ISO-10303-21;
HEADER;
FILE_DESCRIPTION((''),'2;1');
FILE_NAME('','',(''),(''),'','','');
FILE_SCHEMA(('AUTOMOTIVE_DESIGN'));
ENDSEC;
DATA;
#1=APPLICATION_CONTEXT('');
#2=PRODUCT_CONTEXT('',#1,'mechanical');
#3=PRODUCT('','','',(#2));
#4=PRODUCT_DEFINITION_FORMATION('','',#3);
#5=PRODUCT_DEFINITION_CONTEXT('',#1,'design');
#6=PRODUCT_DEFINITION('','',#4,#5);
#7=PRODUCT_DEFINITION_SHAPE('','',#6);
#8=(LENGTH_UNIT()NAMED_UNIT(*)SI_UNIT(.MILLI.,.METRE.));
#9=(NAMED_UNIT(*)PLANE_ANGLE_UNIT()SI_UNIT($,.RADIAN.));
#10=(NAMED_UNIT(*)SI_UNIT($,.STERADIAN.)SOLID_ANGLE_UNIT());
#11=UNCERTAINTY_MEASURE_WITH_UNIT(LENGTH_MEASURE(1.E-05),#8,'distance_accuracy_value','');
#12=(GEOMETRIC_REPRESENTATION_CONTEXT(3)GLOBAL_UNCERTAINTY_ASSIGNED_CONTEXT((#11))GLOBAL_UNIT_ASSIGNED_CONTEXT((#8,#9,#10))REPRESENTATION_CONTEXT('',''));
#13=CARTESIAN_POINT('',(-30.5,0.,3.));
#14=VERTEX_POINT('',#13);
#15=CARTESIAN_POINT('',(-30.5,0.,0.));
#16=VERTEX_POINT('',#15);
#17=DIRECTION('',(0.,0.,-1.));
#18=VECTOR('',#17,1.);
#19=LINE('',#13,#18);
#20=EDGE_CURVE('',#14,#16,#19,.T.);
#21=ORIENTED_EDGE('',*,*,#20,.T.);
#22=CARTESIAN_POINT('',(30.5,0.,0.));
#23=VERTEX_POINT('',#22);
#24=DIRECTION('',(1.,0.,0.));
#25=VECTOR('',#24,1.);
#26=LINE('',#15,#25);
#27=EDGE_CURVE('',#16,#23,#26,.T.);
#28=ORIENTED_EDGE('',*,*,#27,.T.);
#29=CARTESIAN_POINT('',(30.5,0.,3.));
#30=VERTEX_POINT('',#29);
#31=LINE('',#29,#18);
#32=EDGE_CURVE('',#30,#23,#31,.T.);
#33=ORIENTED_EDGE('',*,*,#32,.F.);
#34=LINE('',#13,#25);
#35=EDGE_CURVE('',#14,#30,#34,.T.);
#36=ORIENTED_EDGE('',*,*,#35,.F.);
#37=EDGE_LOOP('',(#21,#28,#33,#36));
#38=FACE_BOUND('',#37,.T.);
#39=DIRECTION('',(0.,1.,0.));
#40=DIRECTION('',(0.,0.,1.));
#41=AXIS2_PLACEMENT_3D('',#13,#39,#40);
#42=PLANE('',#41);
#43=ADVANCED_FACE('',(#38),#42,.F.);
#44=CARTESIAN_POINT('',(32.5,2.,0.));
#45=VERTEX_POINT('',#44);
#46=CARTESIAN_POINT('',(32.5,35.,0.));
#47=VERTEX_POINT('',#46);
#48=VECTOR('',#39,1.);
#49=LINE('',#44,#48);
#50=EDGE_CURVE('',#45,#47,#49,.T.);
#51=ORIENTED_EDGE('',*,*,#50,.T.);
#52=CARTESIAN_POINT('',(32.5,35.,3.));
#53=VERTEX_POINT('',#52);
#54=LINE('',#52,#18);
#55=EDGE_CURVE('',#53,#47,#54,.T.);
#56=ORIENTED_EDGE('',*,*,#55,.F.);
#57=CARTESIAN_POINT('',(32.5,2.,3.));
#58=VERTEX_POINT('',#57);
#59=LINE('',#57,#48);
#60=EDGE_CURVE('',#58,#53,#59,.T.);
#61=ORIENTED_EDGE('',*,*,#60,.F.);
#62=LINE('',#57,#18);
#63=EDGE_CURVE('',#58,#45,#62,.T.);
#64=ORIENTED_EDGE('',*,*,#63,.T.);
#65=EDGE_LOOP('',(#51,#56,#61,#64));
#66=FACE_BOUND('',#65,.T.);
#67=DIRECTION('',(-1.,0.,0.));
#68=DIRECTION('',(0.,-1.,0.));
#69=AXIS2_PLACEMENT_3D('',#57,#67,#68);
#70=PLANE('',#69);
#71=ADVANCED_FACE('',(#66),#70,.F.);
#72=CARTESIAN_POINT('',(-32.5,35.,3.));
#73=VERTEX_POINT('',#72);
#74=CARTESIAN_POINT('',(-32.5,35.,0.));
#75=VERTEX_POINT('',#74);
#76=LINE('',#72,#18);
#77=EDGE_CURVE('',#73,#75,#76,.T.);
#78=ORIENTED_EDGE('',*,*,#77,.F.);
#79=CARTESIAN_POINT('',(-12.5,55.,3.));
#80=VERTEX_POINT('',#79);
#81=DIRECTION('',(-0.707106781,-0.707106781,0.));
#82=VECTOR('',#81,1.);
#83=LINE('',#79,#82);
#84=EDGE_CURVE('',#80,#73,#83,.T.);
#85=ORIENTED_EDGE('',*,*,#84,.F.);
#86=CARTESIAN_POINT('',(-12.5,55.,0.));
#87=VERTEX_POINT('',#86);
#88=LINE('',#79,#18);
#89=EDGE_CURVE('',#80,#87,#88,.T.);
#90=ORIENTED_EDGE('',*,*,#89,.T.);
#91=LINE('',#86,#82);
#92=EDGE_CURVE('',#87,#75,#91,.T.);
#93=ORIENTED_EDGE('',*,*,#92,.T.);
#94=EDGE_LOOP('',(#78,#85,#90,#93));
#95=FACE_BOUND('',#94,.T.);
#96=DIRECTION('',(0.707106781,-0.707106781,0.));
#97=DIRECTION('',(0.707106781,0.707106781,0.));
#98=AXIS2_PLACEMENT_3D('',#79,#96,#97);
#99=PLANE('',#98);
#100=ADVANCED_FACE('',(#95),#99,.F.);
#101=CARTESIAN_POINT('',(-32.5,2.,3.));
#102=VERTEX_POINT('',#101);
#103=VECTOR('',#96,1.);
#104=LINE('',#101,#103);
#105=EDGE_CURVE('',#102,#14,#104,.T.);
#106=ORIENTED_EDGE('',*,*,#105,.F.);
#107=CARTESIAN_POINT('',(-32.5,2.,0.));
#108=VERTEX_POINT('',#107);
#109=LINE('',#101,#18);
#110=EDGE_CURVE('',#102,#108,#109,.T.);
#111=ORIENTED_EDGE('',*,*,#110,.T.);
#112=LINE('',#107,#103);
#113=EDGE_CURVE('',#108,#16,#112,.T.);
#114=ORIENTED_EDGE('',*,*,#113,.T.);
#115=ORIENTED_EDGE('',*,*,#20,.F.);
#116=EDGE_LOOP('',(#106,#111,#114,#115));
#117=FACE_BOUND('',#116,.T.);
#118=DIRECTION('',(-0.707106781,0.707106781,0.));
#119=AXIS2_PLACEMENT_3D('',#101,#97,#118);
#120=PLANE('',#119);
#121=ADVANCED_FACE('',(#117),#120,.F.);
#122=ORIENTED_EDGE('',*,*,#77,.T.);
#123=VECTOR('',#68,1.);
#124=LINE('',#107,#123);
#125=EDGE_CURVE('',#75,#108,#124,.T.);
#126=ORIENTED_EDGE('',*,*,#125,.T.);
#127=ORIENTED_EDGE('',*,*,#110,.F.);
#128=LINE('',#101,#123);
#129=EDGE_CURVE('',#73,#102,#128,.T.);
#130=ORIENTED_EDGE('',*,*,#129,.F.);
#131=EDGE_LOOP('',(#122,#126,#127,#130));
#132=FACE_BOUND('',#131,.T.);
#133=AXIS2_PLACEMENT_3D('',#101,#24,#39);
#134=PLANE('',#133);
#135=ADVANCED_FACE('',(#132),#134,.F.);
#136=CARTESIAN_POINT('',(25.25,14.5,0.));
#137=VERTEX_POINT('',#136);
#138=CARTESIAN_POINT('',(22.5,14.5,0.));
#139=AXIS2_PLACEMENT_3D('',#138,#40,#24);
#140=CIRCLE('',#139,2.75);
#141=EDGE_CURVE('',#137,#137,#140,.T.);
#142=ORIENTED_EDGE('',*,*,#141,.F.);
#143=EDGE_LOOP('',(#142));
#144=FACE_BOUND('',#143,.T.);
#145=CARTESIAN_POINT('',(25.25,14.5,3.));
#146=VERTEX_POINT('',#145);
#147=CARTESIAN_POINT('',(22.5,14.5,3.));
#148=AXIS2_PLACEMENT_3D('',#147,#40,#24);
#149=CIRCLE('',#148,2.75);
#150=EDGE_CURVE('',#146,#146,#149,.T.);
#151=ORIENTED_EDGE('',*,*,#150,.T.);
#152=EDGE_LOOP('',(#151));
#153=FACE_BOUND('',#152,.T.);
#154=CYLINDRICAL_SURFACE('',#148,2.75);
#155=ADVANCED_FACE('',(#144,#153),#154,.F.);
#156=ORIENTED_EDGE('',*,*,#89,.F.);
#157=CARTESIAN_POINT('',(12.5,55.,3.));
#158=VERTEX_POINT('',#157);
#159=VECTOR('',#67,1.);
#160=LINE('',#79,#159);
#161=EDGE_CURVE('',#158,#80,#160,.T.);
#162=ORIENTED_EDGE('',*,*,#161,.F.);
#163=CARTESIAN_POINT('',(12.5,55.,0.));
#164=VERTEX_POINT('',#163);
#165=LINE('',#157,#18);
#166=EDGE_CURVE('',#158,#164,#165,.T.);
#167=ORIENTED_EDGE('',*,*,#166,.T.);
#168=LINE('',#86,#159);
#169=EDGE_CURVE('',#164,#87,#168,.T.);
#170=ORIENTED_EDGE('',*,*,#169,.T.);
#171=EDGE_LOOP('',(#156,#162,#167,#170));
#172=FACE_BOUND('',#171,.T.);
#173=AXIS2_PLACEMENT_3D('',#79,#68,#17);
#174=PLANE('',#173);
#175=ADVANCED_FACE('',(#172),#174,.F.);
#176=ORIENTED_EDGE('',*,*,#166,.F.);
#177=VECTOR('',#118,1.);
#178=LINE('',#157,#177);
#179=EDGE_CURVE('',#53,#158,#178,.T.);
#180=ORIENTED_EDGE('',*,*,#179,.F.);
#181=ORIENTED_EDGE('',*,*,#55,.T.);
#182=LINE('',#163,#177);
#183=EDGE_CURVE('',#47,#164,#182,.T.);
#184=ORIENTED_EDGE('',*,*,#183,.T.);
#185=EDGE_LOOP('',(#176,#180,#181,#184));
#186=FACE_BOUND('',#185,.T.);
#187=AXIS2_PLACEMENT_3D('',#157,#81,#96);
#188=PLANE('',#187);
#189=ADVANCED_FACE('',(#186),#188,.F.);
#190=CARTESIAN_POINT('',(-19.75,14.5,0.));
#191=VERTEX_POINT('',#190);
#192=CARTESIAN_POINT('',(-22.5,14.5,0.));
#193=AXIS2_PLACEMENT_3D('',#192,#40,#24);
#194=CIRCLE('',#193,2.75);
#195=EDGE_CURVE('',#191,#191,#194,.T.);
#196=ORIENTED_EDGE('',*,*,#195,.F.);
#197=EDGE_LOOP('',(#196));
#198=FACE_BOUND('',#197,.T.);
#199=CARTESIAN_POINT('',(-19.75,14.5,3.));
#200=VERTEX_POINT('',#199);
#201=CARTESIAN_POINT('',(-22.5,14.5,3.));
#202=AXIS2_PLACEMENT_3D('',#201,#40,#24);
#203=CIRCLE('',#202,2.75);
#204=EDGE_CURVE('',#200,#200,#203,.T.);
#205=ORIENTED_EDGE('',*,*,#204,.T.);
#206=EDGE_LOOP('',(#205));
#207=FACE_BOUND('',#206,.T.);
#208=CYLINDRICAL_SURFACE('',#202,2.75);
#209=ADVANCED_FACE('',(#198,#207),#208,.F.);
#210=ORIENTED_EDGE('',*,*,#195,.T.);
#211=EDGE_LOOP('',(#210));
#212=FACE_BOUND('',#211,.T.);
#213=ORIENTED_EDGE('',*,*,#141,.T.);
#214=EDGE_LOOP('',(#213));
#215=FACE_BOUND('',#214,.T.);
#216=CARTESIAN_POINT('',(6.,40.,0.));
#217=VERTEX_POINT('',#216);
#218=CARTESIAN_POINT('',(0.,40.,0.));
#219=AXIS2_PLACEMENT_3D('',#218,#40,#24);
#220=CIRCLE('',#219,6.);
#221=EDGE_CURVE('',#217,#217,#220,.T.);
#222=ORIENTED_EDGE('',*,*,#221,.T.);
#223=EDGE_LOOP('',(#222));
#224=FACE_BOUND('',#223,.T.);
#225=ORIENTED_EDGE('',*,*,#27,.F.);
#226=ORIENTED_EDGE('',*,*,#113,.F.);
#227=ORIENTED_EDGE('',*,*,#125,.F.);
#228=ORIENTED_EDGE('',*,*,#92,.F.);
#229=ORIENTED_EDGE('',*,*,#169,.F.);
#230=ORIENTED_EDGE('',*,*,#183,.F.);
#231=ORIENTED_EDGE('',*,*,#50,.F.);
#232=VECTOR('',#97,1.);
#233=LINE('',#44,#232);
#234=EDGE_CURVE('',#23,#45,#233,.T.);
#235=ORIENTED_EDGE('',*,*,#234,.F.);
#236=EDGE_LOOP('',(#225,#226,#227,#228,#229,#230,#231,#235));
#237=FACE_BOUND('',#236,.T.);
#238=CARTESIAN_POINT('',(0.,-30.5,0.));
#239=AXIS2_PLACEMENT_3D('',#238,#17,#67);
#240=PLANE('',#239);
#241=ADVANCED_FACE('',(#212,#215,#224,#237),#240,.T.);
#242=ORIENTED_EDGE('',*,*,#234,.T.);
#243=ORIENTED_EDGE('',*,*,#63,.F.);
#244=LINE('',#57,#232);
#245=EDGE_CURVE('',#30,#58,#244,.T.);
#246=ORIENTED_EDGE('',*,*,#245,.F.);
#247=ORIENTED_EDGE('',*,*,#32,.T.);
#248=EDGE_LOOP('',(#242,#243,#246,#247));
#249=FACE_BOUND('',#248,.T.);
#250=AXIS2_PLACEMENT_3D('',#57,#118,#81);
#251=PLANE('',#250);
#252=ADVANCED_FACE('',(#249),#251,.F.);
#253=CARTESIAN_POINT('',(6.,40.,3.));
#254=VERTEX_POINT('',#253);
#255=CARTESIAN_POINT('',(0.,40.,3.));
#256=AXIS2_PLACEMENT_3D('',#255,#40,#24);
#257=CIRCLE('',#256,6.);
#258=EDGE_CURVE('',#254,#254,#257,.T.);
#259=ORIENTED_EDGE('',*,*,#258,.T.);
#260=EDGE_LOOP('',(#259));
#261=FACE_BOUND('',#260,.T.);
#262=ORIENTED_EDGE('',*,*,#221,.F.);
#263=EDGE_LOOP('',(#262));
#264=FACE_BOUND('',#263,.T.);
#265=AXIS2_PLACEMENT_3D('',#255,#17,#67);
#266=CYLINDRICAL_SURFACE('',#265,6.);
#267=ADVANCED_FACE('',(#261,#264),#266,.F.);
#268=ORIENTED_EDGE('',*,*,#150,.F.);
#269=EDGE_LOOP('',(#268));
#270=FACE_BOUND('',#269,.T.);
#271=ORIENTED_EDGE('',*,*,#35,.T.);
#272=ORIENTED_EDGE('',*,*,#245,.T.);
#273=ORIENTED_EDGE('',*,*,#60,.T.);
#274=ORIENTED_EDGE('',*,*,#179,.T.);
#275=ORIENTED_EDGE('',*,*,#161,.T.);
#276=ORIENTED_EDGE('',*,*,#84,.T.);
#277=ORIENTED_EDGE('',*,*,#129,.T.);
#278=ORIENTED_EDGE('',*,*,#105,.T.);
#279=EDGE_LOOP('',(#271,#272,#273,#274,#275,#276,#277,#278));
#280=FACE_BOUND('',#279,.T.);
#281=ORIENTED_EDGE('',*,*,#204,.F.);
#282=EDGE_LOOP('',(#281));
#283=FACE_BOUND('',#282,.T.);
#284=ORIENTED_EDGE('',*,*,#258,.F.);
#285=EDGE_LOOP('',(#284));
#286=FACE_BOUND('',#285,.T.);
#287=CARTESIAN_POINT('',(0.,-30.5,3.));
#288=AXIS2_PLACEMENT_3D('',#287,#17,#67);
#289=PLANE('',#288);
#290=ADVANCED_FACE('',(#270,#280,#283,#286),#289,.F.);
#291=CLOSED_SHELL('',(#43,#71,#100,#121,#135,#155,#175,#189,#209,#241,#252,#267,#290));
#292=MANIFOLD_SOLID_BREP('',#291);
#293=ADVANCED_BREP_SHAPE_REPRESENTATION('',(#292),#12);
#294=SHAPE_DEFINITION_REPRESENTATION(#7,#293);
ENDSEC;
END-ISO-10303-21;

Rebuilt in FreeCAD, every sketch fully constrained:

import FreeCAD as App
import Part
import Sketcher
from FreeCAD import Vector
Q = App.Units.Quantity


def add_polygon(sketch, points):
    """Adds a closed chain of lines whose ends are joined by coincident constraints."""
    first, n = sketch.GeometryCount, len(points)
    for a, b in zip(points, points[1:] + points[:1]):
        sketch.addGeometry(Part.LineSegment(App.Vector(*a, 0), App.Vector(*b, 0)), False)
    for i in range(n):
        sketch.addConstraint(Sketcher.Constraint("Coincident", first + i, 2, first + (i + 1) % n, 1))

doc = App.newDocument("Part")
body = doc.addObject("PartDesign::Body", "Body")

# Sketch on XY plane
sketch1 = doc.addObject("Sketcher::SketchObject", "Sketch")
body.addObject(sketch1)
sketch1.AttachmentSupport = (doc.XY_Plane, [""])
sketch1.MapMode = "FlatFace"
add_polygon(sketch1, [(-12.5, 55), (-32.5, 35), (-32.5, 2), (-30.5, 0), (30.5, 0), (32.5, 2), (32.5, 35), (12.5, 55)])  # lines 0-7
sketch1.addConstraint([
    Sketcher.Constraint("Vertical", 1),
    Sketcher.Constraint("Horizontal", 3),
    Sketcher.Constraint("Vertical", 5),
    Sketcher.Constraint("Horizontal", 7),
    Sketcher.Constraint("Symmetric", 2, 2, 3, 2, -1, 1),
    Sketcher.Constraint("Symmetric", 1, 2, 4, 2, -2),
    Sketcher.Constraint("Perpendicular", 0, 2),
    Sketcher.Constraint("Perpendicular", 2, 4),
    Sketcher.Constraint("Perpendicular", 4, 6),
    Sketcher.Constraint("Horizontal", 0, 2, 5, 2),
    Sketcher.Constraint("DistanceX", 3, 1, 3, 2, Q("61 mm")),
    Sketcher.Constraint("DistanceX", 7, 2, 7, 1, Q("25 mm")),
    Sketcher.Constraint("DistanceY", 1, 2, 1, 1, Q("33 mm")),
    Sketcher.Constraint("DistanceY", -1, 1, 0, 2, Q("35 mm")),
])
pad1 = doc.addObject("PartDesign::Pad", "Pad")
body.addObject(pad1)
pad1.Profile = sketch1
pad1.Length = 3

# Sketch on XY plane
sketch2 = doc.addObject("Sketcher::SketchObject", "Sketch001")
body.addObject(sketch2)
sketch2.AttachmentSupport = (doc.XY_Plane, [""])
sketch2.MapMode = "FlatFace"
sketch2.addGeometry(Part.Circle(Vector(0, 40, 0), Vector(0, 0, 1), 6), False)
sketch2.addConstraint([
    Sketcher.Constraint("PointOnObject", 0, 3, -2),
    Sketcher.Constraint("Diameter", 0, Q("12 mm")),
    Sketcher.Constraint("DistanceY", -1, 1, 0, 3, Q("40 mm")),
])
pocket1 = doc.addObject("PartDesign::Pocket", "Pocket")
body.addObject(pocket1)
pocket1.Profile = sketch2
pocket1.Type = "ThroughAll"
pocket1.Reversed = True

# Sketch on XY plane
sketch3 = doc.addObject("Sketcher::SketchObject", "Sketch002")
body.addObject(sketch3)
sketch3.AttachmentSupport = (doc.XY_Plane, [""])
sketch3.MapMode = "FlatFace"
sketch3.AttachmentOffset = App.Placement(Vector(0, 0, 3), App.Rotation())
sketch3.addGeometry([
    Part.Circle(Vector(-22.5, 14.5, 0), Vector(0, 0, 1), 2.75),
    Part.Circle(Vector(22.5, 14.5, 0), Vector(0, 0, 1), 2.75),
], False)
sketch3.addConstraint([
    Sketcher.Constraint("Equal", 0, 1),
    Sketcher.Constraint("Symmetric", 0, 3, 1, 3, -2),
    Sketcher.Constraint("Diameter", 0, Q("5.5 mm")),
    Sketcher.Constraint("DistanceX", 0, 3, 1, 3, Q("45 mm")),
    Sketcher.Constraint("DistanceY", -1, 1, 0, 3, Q("14.5 mm")),
])
doc.recompute()
hole = doc.addObject("PartDesign::Hole", "Hole")
body.addObject(hole)
hole.Profile = sketch3
hole.ThreadType = "None"
hole.Diameter = 5.5
hole.DepthType = "ThroughAll"

doc.recompute()
